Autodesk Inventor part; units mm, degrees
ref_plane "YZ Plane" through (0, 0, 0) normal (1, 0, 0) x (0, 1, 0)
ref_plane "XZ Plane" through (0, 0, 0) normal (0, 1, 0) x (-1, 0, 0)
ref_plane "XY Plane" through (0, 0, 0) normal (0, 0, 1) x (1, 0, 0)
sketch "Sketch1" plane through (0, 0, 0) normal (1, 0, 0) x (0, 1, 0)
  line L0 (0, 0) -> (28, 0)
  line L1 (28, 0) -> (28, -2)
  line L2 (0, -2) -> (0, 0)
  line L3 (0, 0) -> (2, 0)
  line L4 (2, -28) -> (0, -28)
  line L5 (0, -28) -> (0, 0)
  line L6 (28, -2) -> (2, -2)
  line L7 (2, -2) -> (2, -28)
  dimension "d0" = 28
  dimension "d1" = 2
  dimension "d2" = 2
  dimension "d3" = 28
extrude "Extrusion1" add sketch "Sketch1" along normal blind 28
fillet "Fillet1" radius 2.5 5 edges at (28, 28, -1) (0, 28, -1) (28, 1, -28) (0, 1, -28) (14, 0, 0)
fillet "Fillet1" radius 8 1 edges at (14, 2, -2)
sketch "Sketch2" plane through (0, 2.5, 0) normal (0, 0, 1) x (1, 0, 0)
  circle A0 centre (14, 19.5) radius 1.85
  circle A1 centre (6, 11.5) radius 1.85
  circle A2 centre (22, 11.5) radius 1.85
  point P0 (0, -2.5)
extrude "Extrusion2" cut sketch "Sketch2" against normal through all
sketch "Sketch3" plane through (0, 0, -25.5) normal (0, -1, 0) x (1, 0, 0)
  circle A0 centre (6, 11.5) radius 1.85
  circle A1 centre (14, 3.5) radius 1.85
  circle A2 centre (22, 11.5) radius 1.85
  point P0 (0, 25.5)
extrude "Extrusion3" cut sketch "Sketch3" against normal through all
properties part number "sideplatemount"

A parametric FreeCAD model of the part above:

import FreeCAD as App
import Part
import Sketcher


def edges_at(feature, points):
    """Names of the edges that pass closest to the given points."""
    edges = feature.Shape.Edges
    near = lambda p: min(range(len(edges)), key=lambda i: edges[i].distToShape(Part.Vertex(*p))[0])
    return sorted({f"Edge{near(p) + 1}" for p in points})


def add_polygon(sketch, points):
    """Adds a closed chain of lines whose ends are joined by coincident constraints."""
    first, n = sketch.GeometryCount, len(points)
    for a, b in zip(points, points[1:] + points[:1]):
        sketch.addGeometry(Part.LineSegment(App.Vector(*a, 0), App.Vector(*b, 0)), False)
    for i in range(n):
        sketch.addConstraint(Sketcher.Constraint("Coincident", first + i, 2, first + (i + 1) % n, 1))

doc = App.newDocument("Part")
body = doc.addObject("PartDesign::Body", "Body")

# Sketch on YZ plane
sketch1 = body.newObject("Sketcher::SketchObject", "Sketch")
sketch1.AttachmentSupport = (doc.getObject("YZ_Plane"), [""])
sketch1.MapMode = "FlatFace"
add_polygon(sketch1, [(28, 0), (0, 0), (0, -28), (2, -28), (2, -2), (28, -2)])  # lines 0-5
sketch1.addConstraint([
    Sketcher.Constraint("Horizontal", 0),
    Sketcher.Constraint("Vertical", 1),
    Sketcher.Constraint("Horizontal", 2),
    Sketcher.Constraint("Vertical", 3),
    Sketcher.Constraint("Horizontal", 4),
    Sketcher.Constraint("Vertical", 5),
    Sketcher.Constraint("Coincident", 0, 2, -1, 1),
    Sketcher.Constraint("Equal", 0, 1),
    Sketcher.Constraint("Equal", 4, 3),
    Sketcher.Constraint("DistanceX", 0, 2, 0, 1, 28.0),
    Sketcher.Constraint("DistanceX", 2, 1, 2, 2, 2.0),
])
pad1 = body.newObject("PartDesign::Pad", "Pad")
pad1.Profile = sketch1
pad1.Length = 28
doc.recompute()

fillet = body.newObject("PartDesign::Fillet", "Fillet")
fillet.Base = (pad1, edges_at(pad1, [
    (28, 28, -1),
    (0, 28, -1),
    (28, 1, -28),
    (0, 1, -28),
    (14, 0, 0),
]))
fillet.Radius = 2.5
doc.recompute()

fillet2 = body.newObject("PartDesign::Fillet", "Fillet001")
fillet2.Base = (fillet, edges_at(fillet, [(14, 2, -2)]))
fillet2.Radius = 8

# Sketch on XY plane
sketch2 = body.newObject("Sketcher::SketchObject", "Sketch001")
sketch2.AttachmentSupport = (doc.getObject("XY_Plane"), [""])
sketch2.MapMode = "FlatFace"
sketch2.addGeometry([
    Part.Circle(App.Vector(14, 22, 0), App.Vector(0, 0, 1), 1.9),
    Part.Circle(App.Vector(6, 14, 0), App.Vector(0, 0, 1), 1.9),
    Part.Circle(App.Vector(22, 14, 0), App.Vector(0, 0, 1), 1.9),
], False)
sketch2.addConstraint([
    Sketcher.Constraint("Equal", 0, 1),
    Sketcher.Constraint("Equal", 1, 2),
    Sketcher.Constraint("Horizontal", 1, 3, 2, 3),
    Sketcher.Constraint("Diameter", 0, 3.7),
    Sketcher.Constraint("DistanceX", -1, 1, 0, 3, 14.0),
    Sketcher.Constraint("DistanceY", -1, 1, 0, 3, 22.0),
    Sketcher.Constraint("DistanceX", -1, 1, 1, 3, 6.0),
    Sketcher.Constraint("DistanceY", -1, 1, 1, 3, 14.0),
    Sketcher.Constraint("DistanceX", -1, 1, 2, 3, 22.0),
])
pocket1 = body.newObject("PartDesign::Pocket", "Pocket")
pocket1.Profile = sketch2
pocket1.Type = "ThroughAll"

# Sketch on XZ plane
sketch3 = body.newObject("Sketcher::SketchObject", "Sketch002")
sketch3.AttachmentSupport = (doc.getObject("XZ_Plane"), [""])
sketch3.MapMode = "FlatFace"
sketch3.addGeometry([
    Part.Circle(App.Vector(6, -14, 0), App.Vector(0, 0, 1), 1.9),
    Part.Circle(App.Vector(14, -22, 0), App.Vector(0, 0, 1), 1.9),
    Part.Circle(App.Vector(22, -14, 0), App.Vector(0, 0, 1), 1.9),
], False)
sketch3.addConstraint([
    Sketcher.Constraint("Equal", 0, 1),
    Sketcher.Constraint("Equal", 1, 2),
    Sketcher.Constraint("Horizontal", 0, 3, 2, 3),
    Sketcher.Constraint("Diameter", 0, 3.7),
    Sketcher.Constraint("DistanceX", -1, 1, 0, 3, 6.0),
    Sketcher.Constraint("DistanceY", 0, 3, -1, 1, 14.0),
    Sketcher.Constraint("DistanceX", -1, 1, 1, 3, 14.0),
    Sketcher.Constraint("DistanceY", 1, 3, -1, 1, 22.0),
    Sketcher.Constraint("DistanceX", -1, 1, 2, 3, 22.0),
])
pocket2 = body.newObject("PartDesign::Pocket", "Pocket001")
pocket2.Profile = sketch3
pocket2.Type = "ThroughAll"

doc.recompute()
